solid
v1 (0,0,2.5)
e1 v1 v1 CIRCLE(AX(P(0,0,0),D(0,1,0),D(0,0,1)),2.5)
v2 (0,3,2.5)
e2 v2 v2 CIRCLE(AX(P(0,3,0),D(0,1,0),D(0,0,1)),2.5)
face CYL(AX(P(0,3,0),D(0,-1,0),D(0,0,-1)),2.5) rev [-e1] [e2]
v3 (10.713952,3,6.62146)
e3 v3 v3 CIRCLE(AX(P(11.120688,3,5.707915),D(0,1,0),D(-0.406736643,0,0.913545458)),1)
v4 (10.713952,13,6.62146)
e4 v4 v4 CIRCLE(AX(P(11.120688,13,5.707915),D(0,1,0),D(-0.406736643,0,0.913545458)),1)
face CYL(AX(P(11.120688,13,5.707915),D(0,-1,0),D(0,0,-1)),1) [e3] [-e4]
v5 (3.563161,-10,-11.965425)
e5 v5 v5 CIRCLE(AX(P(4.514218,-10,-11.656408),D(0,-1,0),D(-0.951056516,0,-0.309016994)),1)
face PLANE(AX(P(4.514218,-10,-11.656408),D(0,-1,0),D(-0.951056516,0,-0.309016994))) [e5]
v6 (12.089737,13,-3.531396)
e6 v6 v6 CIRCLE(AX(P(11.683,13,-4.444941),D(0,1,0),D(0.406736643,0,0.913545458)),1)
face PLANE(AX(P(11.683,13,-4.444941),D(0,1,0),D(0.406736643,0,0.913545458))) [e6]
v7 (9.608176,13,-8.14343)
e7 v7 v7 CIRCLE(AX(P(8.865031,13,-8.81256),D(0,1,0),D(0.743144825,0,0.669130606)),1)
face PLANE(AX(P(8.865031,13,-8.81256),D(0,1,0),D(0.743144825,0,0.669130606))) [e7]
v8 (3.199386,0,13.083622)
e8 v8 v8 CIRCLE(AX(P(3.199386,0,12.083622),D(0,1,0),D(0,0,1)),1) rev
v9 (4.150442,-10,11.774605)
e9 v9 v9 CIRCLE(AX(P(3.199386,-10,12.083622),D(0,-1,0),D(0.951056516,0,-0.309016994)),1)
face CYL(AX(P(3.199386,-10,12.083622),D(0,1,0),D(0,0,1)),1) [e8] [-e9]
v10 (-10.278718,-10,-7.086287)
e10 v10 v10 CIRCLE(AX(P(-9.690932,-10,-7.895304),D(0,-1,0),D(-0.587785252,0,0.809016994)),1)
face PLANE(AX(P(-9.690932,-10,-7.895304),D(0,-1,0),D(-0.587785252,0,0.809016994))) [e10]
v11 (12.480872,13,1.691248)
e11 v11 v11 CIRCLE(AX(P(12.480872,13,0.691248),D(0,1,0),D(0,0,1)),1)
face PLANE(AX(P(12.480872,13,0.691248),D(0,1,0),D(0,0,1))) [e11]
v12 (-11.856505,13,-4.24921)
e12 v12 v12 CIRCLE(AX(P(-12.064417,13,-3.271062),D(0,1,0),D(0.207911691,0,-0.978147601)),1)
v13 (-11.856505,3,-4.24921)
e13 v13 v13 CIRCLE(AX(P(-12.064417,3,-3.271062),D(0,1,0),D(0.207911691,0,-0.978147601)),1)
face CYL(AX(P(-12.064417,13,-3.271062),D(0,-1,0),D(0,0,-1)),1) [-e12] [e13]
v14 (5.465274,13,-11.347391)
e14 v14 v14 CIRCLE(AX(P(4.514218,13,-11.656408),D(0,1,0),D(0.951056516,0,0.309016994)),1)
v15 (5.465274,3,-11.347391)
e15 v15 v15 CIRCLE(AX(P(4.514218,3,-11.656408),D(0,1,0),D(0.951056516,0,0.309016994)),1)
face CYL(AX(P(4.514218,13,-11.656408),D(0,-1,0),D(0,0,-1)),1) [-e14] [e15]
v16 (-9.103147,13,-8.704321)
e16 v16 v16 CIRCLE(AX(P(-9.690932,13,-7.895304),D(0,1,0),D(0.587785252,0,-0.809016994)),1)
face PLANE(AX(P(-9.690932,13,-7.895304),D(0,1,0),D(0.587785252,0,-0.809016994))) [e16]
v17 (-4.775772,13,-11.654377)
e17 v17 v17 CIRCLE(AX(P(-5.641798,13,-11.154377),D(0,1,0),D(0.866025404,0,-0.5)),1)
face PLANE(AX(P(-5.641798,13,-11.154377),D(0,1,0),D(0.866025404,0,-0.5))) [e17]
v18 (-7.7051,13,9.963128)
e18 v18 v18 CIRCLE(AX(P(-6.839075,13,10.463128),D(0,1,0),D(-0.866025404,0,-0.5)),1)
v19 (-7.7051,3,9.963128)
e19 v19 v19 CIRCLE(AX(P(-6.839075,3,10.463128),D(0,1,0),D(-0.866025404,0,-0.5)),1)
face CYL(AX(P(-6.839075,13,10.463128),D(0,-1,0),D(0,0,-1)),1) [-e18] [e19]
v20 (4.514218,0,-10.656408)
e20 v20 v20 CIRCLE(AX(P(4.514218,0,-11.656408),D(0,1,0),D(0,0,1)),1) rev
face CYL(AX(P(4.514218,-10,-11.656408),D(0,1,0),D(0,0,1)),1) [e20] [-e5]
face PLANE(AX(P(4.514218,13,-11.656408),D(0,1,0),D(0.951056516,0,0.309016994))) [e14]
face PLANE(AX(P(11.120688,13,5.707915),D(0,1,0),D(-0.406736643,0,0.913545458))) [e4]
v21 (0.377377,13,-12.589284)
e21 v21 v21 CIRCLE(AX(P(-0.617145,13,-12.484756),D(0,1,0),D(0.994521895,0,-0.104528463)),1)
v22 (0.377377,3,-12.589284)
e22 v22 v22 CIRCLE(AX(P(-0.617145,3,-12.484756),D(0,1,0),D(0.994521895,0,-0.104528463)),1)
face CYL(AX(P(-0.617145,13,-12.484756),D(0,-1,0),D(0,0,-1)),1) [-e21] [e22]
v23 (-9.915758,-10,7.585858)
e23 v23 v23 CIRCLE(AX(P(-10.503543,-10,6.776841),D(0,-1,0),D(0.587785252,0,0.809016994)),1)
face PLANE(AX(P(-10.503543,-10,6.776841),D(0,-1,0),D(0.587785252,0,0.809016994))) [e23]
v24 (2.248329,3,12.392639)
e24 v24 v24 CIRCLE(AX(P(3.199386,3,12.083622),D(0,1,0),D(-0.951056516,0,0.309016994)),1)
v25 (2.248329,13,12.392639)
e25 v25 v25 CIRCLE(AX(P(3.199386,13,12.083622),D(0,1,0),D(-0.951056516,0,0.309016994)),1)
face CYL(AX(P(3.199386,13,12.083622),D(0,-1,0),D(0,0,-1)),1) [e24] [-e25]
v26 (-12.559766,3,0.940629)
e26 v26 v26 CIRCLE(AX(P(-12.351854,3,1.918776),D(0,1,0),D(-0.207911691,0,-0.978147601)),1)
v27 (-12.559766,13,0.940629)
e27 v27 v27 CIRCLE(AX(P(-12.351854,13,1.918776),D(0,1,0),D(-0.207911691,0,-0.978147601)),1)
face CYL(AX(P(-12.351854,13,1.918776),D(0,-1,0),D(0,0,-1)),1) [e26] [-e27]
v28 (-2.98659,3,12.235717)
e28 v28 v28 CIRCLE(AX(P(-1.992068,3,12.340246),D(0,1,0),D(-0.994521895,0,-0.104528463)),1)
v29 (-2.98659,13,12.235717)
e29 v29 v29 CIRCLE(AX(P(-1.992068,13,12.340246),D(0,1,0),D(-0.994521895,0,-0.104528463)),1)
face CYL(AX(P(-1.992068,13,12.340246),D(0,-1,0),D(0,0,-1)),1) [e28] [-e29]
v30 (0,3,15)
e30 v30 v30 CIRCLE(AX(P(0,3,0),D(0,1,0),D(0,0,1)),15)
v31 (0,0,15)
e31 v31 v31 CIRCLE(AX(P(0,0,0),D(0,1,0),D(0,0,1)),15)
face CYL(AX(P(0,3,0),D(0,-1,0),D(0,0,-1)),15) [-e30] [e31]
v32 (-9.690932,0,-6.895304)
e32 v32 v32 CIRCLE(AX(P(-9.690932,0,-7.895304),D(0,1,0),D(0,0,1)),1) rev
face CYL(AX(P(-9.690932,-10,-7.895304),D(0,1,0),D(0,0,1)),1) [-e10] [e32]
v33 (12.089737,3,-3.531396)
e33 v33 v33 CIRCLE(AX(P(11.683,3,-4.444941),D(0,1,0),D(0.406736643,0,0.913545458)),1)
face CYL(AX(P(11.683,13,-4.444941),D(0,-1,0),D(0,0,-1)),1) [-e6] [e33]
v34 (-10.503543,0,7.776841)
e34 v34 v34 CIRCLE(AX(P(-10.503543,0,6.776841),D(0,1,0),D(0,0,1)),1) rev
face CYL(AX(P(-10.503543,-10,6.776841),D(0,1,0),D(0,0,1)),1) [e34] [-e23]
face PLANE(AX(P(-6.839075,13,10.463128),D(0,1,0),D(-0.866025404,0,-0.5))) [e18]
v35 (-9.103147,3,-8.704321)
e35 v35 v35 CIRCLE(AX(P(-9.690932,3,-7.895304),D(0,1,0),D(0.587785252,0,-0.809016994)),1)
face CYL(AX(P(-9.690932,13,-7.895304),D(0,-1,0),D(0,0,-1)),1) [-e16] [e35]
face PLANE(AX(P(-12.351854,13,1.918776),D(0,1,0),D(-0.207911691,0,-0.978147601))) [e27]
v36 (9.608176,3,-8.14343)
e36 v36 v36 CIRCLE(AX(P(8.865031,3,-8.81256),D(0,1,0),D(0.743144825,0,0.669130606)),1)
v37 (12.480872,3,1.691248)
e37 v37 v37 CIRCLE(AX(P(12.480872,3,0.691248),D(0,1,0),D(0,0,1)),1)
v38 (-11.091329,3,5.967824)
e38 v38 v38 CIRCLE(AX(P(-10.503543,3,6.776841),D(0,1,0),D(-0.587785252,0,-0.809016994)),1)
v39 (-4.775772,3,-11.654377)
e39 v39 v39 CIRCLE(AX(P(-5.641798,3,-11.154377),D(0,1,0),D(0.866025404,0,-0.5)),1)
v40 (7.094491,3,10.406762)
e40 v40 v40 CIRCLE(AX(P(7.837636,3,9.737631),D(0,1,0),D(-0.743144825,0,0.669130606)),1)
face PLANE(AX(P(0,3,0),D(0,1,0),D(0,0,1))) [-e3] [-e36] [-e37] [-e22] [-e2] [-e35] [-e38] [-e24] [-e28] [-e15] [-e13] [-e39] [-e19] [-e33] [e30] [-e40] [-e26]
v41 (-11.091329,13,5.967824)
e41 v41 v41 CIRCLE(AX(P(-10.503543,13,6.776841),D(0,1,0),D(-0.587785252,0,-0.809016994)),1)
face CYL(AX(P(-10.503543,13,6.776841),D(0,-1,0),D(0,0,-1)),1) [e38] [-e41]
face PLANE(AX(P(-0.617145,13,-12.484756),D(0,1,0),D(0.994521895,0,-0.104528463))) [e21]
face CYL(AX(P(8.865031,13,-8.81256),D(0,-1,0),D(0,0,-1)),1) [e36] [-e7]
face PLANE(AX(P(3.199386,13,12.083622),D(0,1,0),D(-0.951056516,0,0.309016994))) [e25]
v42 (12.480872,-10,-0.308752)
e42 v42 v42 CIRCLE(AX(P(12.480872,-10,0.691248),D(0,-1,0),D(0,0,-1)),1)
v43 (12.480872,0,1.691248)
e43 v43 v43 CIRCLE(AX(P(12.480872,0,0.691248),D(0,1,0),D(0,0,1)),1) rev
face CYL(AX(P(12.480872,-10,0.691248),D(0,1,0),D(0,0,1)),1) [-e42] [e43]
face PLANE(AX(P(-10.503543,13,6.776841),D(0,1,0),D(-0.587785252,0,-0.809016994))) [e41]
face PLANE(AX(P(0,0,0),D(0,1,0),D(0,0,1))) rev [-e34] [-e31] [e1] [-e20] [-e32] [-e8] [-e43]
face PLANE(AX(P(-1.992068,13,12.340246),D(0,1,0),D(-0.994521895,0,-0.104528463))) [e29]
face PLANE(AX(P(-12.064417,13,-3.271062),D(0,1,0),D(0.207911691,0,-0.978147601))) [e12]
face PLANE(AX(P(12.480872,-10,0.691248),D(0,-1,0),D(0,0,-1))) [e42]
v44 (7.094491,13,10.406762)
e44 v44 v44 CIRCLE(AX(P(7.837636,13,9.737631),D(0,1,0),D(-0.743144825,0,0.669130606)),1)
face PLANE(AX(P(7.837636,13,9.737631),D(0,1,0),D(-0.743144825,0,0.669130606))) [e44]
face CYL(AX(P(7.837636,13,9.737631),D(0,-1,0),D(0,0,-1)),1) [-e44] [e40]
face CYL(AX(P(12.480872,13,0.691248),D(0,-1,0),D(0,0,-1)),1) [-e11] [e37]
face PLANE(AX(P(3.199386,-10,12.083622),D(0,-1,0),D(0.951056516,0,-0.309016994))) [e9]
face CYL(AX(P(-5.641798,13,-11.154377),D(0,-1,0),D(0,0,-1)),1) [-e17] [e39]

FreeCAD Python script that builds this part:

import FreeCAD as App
import Part
import Sketcher

V = App.Vector
Q = App.Units.Quantity

doc = App.newDocument("Part")
params = doc.addObject("Spreadsheet::Sheet", "Params")
for row, (alias, value) in enumerate([
    ("sketch1_diameter", "30 mm"),
    ("sketch1_diameter2", "5 mm"),
    ("pad1_length", "3 mm"),
    ("sketch2_diameter", "2 mm"),
    ("pad2_length", "10 mm"),
    ("sketch3_diameter", "2 mm"),
    ("pad3_length", "10 mm"),
], start=1):
    params.set(f"A{row}", alias)
    params.set(f"B{row}", "=" + value)
    params.setAlias(f"B{row}", alias)

body = doc.addObject("PartDesign::Body", "Body")

# Sketch on XZ plane
sketch1 = doc.addObject("Sketcher::SketchObject", "Sketch")
body.addObject(sketch1)
sketch1.AttachmentSupport = (doc.XZ_Plane, [""])
sketch1.MapMode = "FlatFace"
sketch1.addGeometry(Part.Circle(V(0, 0, 0), V(0, 0, 1), 15), False)
sketch1.addGeometry(Part.Circle(V(0, 0, 0), V(0, 0, 1), 2.5), False)
sketch1.addConstraint(Sketcher.Constraint("Coincident", 0, 3, -1, 1))
sketch1.addConstraint(Sketcher.Constraint("Coincident", 1, 3, -1, 1))
sketch1.addConstraint(Sketcher.Constraint("Diameter", 0, Q("30 mm")))
sketch1.addConstraint(Sketcher.Constraint("Diameter", 1, Q("5 mm")))
sketch1.setExpression("Constraints[2]", "Params.sketch1_diameter")
sketch1.setExpression("Constraints[3]", "Params.sketch1_diameter2")
pad1 = doc.addObject("PartDesign::Pad", "Pad")
body.addObject(pad1)
pad1.Profile = sketch1
pad1.setExpression("Length", "Params.pad1_length")
pad1.Reversed = True

# Sketch on XZ plane
sketch2 = doc.addObject("Sketcher::SketchObject", "Sketch001")
body.addObject(sketch2)
sketch2.AttachmentSupport = (doc.XZ_Plane, [""])
sketch2.MapMode = "FlatFace"
sketch2.AttachmentOffset = App.Placement(V(0, 0, -3), App.Rotation())
sketch2.addGeometry(Part.Circle(V(12.480872, 0.691248, 0), V(0, 0, 1), 1), False)
sketch2.addConstraint(Sketcher.Constraint("Diameter", 0, Q("2 mm")))
sketch2.addConstraint(Sketcher.Constraint("DistanceY", -1, 1, 0, 3, Q("0.691248 mm")))
sketch2.addConstraint(Sketcher.Constraint("DistanceX", -1, 1, 0, 3, Q("12.480872 mm")))
sketch2.setExpression("Constraints[0]", "Params.sketch2_diameter")
pad2 = doc.addObject("PartDesign::Pad", "Pad001")
body.addObject(pad2)
pad2.Profile = sketch2
pad2.setExpression("Length", "Params.pad2_length")
pad2.Reversed = True
doc.recompute()

polarpattern = doc.addObject("PartDesign::PolarPattern", "PolarPattern")
body.addObject(polarpattern)
polarpattern.Originals = [pad2]
polarpattern.Axis = (doc.Y_Axis, [""])
polarpattern.Angle = 360
polarpattern.Occurrences = 15
body.Tip = polarpattern

# Sketch on XZ plane
sketch3 = doc.addObject("Sketcher::SketchObject", "Sketch002")
body.addObject(sketch3)
sketch3.AttachmentSupport = (doc.XZ_Plane, [""])
sketch3.MapMode = "FlatFace"
sketch3.AttachmentOffset = App.Placement(V(0, 0, 10), App.Rotation())
sketch3.addGeometry(Part.Circle(V(12.480872, 0.691248, 0), V(0, 0, 1), 1), False)
sketch3.addConstraint(Sketcher.Constraint("Diameter", 0, Q("2 mm")))
sketch3.addConstraint(Sketcher.Constraint("DistanceY", -1, 1, 0, 3, Q("0.691248 mm")))
sketch3.addConstraint(Sketcher.Constraint("DistanceX", -1, 1, 0, 3, Q("12.480872 mm")))
sketch3.setExpression("Constraints[0]", "Params.sketch3_diameter")
pad3 = doc.addObject("PartDesign::Pad", "Pad002")
body.addObject(pad3)
pad3.Profile = sketch3
pad3.setExpression("Length", "Params.pad3_length")
pad3.Reversed = True
doc.recompute()

polarpattern2 = doc.addObject("PartDesign::PolarPattern", "PolarPattern001")
body.addObject(polarpattern2)
polarpattern2.Originals = [pad3]
polarpattern2.Axis = (doc.Y_Axis, [""])
polarpattern2.Angle = 360
polarpattern2.Occurrences = 5
body.Tip = polarpattern2

doc.recompute()
